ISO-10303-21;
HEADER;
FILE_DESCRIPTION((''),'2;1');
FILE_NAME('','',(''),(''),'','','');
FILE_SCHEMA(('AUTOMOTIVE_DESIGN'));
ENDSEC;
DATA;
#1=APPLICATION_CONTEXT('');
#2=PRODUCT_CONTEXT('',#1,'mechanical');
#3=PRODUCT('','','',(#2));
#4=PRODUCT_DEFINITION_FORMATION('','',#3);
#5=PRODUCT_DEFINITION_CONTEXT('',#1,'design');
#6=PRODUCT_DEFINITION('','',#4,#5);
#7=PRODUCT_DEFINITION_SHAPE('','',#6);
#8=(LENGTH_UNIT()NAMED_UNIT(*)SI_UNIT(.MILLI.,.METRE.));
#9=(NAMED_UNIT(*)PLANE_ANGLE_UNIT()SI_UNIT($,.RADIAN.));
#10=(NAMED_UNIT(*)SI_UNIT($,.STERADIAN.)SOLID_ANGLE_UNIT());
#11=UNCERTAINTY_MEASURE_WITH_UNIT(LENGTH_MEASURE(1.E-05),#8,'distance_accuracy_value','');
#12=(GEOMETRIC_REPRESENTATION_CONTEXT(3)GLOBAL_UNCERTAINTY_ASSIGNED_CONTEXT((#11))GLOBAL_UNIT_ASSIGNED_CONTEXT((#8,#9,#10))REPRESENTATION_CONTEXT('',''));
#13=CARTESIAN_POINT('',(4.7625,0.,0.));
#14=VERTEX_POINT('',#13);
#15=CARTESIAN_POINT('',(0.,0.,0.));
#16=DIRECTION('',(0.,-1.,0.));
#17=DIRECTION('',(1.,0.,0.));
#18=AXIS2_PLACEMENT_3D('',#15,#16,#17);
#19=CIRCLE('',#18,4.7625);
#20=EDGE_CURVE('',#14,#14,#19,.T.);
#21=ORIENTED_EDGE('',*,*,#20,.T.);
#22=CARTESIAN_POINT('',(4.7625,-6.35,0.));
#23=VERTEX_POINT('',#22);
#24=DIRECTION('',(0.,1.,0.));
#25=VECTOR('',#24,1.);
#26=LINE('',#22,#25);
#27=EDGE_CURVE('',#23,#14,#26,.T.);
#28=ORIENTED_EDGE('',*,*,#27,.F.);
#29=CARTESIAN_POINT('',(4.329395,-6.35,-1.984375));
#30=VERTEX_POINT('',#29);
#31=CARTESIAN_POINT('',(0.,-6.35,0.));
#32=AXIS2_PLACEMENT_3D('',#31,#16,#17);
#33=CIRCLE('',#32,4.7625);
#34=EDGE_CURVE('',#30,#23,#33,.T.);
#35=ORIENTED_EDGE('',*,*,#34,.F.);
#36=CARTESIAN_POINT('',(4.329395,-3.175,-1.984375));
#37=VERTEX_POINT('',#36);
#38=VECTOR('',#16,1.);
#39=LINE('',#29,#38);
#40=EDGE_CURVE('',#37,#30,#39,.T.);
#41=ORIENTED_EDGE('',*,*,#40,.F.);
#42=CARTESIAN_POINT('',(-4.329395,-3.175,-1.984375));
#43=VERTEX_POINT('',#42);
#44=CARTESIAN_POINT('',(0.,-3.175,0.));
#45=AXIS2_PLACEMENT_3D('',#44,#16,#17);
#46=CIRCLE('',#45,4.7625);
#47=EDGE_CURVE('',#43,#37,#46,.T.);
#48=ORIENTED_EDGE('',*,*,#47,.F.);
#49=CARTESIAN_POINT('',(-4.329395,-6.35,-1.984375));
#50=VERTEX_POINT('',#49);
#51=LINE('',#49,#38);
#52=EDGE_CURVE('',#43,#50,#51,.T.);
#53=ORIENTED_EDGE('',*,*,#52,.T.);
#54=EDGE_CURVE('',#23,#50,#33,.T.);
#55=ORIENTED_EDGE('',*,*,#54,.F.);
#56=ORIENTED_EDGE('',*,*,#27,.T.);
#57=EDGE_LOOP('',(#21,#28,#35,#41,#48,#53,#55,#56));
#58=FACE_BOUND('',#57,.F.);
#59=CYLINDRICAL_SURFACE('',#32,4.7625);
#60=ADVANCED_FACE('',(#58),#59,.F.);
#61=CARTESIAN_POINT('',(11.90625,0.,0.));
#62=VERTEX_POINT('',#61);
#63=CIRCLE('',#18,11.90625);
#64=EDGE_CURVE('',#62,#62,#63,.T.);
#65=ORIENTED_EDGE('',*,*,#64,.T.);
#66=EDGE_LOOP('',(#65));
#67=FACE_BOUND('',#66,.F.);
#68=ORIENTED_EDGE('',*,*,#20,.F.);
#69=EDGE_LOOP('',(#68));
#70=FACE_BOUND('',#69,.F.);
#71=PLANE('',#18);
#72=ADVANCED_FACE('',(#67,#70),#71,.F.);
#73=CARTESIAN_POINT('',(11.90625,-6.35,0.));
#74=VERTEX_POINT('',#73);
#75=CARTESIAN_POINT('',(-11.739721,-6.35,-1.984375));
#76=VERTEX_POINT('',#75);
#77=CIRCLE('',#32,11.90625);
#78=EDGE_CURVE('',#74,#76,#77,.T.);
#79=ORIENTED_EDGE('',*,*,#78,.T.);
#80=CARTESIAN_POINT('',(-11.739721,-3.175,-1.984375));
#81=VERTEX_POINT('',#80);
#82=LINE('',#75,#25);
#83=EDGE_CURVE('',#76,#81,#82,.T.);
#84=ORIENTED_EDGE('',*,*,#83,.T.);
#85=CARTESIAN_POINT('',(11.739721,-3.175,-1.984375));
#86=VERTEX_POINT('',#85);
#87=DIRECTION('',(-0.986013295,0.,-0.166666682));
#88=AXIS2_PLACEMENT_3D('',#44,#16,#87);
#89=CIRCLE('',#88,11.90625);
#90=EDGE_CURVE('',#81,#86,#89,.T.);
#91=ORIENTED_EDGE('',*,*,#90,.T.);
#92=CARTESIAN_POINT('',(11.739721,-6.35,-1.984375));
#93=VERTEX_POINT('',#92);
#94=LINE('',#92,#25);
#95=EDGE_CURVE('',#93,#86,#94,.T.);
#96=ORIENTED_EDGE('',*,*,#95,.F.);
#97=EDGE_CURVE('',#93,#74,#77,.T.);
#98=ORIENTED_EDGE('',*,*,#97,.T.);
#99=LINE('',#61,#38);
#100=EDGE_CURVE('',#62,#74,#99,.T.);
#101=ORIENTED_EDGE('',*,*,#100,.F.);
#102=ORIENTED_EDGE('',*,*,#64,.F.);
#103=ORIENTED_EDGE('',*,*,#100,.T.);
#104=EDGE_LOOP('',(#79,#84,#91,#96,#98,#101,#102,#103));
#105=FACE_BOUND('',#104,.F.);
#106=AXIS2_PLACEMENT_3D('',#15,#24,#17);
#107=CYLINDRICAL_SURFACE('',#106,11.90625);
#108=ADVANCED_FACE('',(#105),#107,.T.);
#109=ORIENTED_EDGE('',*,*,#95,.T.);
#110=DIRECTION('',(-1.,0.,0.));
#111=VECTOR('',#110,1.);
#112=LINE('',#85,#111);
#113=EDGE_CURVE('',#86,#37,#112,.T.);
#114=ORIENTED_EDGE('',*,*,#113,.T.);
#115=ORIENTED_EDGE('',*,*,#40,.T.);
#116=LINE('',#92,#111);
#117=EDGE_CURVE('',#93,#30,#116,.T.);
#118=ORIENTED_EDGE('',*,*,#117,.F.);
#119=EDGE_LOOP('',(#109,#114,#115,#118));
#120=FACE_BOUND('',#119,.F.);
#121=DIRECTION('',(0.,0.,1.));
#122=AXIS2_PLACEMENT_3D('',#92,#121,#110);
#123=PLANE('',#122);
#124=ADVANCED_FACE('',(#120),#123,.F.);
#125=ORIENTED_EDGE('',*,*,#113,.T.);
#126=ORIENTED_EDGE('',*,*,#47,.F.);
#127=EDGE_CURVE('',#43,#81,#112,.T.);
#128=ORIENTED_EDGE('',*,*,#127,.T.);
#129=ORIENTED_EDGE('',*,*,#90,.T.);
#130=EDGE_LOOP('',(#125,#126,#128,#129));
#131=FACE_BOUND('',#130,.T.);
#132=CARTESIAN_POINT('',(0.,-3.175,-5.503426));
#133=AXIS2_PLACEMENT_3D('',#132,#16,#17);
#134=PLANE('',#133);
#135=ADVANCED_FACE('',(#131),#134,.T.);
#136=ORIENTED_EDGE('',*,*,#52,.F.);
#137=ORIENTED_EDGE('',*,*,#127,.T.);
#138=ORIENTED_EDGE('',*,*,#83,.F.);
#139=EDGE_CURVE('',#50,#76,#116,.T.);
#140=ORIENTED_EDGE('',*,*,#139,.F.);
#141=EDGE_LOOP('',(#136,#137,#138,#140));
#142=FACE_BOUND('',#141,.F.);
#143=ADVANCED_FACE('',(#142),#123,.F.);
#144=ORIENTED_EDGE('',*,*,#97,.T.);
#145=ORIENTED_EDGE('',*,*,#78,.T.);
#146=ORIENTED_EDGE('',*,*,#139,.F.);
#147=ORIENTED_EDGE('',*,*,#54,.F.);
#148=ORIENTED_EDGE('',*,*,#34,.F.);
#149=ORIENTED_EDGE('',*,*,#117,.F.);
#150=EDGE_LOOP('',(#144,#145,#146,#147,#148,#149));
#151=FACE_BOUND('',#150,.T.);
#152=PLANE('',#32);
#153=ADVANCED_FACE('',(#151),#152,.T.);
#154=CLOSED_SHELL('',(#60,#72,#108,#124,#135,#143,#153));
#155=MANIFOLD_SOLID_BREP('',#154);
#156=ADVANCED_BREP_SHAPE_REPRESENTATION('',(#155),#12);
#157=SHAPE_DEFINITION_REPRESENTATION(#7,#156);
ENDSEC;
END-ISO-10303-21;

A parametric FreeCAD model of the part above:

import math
import FreeCAD as App
import Part
import Sketcher

V = App.Vector
Q = App.Units.Quantity

doc = App.newDocument("Part")
body = doc.addObject("PartDesign::Body", "Body")

sketch1 = body.newObject("Sketcher::SketchObject", "Sketch")
sketch1.AttachmentSupport = (doc.getObject("XZ_Plane"), [""])
sketch1.MapMode = "FlatFace"
sketch1.addGeometry(Part.Circle(V(0, 0, 0), V(0, 0, 1), 12), False)
sketch1.addConstraint(Sketcher.Constraint("Coincident", 0, 3, -1, 1))
sketch1.addConstraint(Sketcher.Constraint("Diameter", 0, Q("0.9375 in")))
pad1 = body.newObject("PartDesign::Pad", "Pad")
pad1.Profile = sketch1
pad1.Length = Q("0.25 in")

sketch2 = body.newObject("Sketcher::SketchObject", "Sketch001")
sketch2.AttachmentSupport = (doc.getObject("XZ_Plane"), [""])
sketch2.MapMode = "FlatFace"
sketch2.AttachmentOffset = App.Placement(V(0, 0, 0.25 * 25.4), App.Rotation())
sketch2.addGeometry(Part.Circle(V(0, 0, 0), V(0, 0, 1), 4.8), False)
sketch2.addConstraint(Sketcher.Constraint("Coincident", 0, 3, -1, 1))
sketch2.addConstraint(Sketcher.Constraint("Diameter", 0, Q("0.375 in")))
pocket1 = body.newObject("PartDesign::Pocket", "Pocket")
pocket1.Profile = sketch2
pocket1.Length = Q("1 in")

sketch3 = body.newObject("Sketcher::SketchObject", "Sketch002")
sketch3.AttachmentSupport = (doc.getObject("XZ_Plane"), [""])
sketch3.MapMode = "FlatFace"
sketch3.AttachmentOffset = App.Placement(V(0, 0, 0.25 * 25.4), App.Rotation())
sketch3.addGeometry(Part.ArcOfCircle(Part.Circle(V(0, 0, 0), V(0, 0, 1), 12), math.radians(-170), math.radians(-10)), False)
sketch3.addGeometry(Part.LineSegment(V(12, -2, 0), V(-12, -2, 0)), False)
sketch3.addConstraint(Sketcher.Constraint("Coincident", 0, 1, 1, 2))
sketch3.addConstraint(Sketcher.Constraint("Coincident", 1, 1, 0, 2))
sketch3.addConstraint(Sketcher.Constraint("Horizontal", 1))
sketch3.addConstraint(Sketcher.Constraint("Coincident", 0, 3, -1, 1))
sketch3.addConstraint(Sketcher.Constraint("Radius", 0, Q("0.46875 in")))
sketch3.addConstraint(Sketcher.Constraint("DistanceY", 0, 1, -1, 1, Q("0.078125 in")))
pocket2 = body.newObject("PartDesign::Pocket", "Pocket001")
pocket2.Profile = sketch3
pocket2.Length = Q("0.125 in")

doc.recompute()
